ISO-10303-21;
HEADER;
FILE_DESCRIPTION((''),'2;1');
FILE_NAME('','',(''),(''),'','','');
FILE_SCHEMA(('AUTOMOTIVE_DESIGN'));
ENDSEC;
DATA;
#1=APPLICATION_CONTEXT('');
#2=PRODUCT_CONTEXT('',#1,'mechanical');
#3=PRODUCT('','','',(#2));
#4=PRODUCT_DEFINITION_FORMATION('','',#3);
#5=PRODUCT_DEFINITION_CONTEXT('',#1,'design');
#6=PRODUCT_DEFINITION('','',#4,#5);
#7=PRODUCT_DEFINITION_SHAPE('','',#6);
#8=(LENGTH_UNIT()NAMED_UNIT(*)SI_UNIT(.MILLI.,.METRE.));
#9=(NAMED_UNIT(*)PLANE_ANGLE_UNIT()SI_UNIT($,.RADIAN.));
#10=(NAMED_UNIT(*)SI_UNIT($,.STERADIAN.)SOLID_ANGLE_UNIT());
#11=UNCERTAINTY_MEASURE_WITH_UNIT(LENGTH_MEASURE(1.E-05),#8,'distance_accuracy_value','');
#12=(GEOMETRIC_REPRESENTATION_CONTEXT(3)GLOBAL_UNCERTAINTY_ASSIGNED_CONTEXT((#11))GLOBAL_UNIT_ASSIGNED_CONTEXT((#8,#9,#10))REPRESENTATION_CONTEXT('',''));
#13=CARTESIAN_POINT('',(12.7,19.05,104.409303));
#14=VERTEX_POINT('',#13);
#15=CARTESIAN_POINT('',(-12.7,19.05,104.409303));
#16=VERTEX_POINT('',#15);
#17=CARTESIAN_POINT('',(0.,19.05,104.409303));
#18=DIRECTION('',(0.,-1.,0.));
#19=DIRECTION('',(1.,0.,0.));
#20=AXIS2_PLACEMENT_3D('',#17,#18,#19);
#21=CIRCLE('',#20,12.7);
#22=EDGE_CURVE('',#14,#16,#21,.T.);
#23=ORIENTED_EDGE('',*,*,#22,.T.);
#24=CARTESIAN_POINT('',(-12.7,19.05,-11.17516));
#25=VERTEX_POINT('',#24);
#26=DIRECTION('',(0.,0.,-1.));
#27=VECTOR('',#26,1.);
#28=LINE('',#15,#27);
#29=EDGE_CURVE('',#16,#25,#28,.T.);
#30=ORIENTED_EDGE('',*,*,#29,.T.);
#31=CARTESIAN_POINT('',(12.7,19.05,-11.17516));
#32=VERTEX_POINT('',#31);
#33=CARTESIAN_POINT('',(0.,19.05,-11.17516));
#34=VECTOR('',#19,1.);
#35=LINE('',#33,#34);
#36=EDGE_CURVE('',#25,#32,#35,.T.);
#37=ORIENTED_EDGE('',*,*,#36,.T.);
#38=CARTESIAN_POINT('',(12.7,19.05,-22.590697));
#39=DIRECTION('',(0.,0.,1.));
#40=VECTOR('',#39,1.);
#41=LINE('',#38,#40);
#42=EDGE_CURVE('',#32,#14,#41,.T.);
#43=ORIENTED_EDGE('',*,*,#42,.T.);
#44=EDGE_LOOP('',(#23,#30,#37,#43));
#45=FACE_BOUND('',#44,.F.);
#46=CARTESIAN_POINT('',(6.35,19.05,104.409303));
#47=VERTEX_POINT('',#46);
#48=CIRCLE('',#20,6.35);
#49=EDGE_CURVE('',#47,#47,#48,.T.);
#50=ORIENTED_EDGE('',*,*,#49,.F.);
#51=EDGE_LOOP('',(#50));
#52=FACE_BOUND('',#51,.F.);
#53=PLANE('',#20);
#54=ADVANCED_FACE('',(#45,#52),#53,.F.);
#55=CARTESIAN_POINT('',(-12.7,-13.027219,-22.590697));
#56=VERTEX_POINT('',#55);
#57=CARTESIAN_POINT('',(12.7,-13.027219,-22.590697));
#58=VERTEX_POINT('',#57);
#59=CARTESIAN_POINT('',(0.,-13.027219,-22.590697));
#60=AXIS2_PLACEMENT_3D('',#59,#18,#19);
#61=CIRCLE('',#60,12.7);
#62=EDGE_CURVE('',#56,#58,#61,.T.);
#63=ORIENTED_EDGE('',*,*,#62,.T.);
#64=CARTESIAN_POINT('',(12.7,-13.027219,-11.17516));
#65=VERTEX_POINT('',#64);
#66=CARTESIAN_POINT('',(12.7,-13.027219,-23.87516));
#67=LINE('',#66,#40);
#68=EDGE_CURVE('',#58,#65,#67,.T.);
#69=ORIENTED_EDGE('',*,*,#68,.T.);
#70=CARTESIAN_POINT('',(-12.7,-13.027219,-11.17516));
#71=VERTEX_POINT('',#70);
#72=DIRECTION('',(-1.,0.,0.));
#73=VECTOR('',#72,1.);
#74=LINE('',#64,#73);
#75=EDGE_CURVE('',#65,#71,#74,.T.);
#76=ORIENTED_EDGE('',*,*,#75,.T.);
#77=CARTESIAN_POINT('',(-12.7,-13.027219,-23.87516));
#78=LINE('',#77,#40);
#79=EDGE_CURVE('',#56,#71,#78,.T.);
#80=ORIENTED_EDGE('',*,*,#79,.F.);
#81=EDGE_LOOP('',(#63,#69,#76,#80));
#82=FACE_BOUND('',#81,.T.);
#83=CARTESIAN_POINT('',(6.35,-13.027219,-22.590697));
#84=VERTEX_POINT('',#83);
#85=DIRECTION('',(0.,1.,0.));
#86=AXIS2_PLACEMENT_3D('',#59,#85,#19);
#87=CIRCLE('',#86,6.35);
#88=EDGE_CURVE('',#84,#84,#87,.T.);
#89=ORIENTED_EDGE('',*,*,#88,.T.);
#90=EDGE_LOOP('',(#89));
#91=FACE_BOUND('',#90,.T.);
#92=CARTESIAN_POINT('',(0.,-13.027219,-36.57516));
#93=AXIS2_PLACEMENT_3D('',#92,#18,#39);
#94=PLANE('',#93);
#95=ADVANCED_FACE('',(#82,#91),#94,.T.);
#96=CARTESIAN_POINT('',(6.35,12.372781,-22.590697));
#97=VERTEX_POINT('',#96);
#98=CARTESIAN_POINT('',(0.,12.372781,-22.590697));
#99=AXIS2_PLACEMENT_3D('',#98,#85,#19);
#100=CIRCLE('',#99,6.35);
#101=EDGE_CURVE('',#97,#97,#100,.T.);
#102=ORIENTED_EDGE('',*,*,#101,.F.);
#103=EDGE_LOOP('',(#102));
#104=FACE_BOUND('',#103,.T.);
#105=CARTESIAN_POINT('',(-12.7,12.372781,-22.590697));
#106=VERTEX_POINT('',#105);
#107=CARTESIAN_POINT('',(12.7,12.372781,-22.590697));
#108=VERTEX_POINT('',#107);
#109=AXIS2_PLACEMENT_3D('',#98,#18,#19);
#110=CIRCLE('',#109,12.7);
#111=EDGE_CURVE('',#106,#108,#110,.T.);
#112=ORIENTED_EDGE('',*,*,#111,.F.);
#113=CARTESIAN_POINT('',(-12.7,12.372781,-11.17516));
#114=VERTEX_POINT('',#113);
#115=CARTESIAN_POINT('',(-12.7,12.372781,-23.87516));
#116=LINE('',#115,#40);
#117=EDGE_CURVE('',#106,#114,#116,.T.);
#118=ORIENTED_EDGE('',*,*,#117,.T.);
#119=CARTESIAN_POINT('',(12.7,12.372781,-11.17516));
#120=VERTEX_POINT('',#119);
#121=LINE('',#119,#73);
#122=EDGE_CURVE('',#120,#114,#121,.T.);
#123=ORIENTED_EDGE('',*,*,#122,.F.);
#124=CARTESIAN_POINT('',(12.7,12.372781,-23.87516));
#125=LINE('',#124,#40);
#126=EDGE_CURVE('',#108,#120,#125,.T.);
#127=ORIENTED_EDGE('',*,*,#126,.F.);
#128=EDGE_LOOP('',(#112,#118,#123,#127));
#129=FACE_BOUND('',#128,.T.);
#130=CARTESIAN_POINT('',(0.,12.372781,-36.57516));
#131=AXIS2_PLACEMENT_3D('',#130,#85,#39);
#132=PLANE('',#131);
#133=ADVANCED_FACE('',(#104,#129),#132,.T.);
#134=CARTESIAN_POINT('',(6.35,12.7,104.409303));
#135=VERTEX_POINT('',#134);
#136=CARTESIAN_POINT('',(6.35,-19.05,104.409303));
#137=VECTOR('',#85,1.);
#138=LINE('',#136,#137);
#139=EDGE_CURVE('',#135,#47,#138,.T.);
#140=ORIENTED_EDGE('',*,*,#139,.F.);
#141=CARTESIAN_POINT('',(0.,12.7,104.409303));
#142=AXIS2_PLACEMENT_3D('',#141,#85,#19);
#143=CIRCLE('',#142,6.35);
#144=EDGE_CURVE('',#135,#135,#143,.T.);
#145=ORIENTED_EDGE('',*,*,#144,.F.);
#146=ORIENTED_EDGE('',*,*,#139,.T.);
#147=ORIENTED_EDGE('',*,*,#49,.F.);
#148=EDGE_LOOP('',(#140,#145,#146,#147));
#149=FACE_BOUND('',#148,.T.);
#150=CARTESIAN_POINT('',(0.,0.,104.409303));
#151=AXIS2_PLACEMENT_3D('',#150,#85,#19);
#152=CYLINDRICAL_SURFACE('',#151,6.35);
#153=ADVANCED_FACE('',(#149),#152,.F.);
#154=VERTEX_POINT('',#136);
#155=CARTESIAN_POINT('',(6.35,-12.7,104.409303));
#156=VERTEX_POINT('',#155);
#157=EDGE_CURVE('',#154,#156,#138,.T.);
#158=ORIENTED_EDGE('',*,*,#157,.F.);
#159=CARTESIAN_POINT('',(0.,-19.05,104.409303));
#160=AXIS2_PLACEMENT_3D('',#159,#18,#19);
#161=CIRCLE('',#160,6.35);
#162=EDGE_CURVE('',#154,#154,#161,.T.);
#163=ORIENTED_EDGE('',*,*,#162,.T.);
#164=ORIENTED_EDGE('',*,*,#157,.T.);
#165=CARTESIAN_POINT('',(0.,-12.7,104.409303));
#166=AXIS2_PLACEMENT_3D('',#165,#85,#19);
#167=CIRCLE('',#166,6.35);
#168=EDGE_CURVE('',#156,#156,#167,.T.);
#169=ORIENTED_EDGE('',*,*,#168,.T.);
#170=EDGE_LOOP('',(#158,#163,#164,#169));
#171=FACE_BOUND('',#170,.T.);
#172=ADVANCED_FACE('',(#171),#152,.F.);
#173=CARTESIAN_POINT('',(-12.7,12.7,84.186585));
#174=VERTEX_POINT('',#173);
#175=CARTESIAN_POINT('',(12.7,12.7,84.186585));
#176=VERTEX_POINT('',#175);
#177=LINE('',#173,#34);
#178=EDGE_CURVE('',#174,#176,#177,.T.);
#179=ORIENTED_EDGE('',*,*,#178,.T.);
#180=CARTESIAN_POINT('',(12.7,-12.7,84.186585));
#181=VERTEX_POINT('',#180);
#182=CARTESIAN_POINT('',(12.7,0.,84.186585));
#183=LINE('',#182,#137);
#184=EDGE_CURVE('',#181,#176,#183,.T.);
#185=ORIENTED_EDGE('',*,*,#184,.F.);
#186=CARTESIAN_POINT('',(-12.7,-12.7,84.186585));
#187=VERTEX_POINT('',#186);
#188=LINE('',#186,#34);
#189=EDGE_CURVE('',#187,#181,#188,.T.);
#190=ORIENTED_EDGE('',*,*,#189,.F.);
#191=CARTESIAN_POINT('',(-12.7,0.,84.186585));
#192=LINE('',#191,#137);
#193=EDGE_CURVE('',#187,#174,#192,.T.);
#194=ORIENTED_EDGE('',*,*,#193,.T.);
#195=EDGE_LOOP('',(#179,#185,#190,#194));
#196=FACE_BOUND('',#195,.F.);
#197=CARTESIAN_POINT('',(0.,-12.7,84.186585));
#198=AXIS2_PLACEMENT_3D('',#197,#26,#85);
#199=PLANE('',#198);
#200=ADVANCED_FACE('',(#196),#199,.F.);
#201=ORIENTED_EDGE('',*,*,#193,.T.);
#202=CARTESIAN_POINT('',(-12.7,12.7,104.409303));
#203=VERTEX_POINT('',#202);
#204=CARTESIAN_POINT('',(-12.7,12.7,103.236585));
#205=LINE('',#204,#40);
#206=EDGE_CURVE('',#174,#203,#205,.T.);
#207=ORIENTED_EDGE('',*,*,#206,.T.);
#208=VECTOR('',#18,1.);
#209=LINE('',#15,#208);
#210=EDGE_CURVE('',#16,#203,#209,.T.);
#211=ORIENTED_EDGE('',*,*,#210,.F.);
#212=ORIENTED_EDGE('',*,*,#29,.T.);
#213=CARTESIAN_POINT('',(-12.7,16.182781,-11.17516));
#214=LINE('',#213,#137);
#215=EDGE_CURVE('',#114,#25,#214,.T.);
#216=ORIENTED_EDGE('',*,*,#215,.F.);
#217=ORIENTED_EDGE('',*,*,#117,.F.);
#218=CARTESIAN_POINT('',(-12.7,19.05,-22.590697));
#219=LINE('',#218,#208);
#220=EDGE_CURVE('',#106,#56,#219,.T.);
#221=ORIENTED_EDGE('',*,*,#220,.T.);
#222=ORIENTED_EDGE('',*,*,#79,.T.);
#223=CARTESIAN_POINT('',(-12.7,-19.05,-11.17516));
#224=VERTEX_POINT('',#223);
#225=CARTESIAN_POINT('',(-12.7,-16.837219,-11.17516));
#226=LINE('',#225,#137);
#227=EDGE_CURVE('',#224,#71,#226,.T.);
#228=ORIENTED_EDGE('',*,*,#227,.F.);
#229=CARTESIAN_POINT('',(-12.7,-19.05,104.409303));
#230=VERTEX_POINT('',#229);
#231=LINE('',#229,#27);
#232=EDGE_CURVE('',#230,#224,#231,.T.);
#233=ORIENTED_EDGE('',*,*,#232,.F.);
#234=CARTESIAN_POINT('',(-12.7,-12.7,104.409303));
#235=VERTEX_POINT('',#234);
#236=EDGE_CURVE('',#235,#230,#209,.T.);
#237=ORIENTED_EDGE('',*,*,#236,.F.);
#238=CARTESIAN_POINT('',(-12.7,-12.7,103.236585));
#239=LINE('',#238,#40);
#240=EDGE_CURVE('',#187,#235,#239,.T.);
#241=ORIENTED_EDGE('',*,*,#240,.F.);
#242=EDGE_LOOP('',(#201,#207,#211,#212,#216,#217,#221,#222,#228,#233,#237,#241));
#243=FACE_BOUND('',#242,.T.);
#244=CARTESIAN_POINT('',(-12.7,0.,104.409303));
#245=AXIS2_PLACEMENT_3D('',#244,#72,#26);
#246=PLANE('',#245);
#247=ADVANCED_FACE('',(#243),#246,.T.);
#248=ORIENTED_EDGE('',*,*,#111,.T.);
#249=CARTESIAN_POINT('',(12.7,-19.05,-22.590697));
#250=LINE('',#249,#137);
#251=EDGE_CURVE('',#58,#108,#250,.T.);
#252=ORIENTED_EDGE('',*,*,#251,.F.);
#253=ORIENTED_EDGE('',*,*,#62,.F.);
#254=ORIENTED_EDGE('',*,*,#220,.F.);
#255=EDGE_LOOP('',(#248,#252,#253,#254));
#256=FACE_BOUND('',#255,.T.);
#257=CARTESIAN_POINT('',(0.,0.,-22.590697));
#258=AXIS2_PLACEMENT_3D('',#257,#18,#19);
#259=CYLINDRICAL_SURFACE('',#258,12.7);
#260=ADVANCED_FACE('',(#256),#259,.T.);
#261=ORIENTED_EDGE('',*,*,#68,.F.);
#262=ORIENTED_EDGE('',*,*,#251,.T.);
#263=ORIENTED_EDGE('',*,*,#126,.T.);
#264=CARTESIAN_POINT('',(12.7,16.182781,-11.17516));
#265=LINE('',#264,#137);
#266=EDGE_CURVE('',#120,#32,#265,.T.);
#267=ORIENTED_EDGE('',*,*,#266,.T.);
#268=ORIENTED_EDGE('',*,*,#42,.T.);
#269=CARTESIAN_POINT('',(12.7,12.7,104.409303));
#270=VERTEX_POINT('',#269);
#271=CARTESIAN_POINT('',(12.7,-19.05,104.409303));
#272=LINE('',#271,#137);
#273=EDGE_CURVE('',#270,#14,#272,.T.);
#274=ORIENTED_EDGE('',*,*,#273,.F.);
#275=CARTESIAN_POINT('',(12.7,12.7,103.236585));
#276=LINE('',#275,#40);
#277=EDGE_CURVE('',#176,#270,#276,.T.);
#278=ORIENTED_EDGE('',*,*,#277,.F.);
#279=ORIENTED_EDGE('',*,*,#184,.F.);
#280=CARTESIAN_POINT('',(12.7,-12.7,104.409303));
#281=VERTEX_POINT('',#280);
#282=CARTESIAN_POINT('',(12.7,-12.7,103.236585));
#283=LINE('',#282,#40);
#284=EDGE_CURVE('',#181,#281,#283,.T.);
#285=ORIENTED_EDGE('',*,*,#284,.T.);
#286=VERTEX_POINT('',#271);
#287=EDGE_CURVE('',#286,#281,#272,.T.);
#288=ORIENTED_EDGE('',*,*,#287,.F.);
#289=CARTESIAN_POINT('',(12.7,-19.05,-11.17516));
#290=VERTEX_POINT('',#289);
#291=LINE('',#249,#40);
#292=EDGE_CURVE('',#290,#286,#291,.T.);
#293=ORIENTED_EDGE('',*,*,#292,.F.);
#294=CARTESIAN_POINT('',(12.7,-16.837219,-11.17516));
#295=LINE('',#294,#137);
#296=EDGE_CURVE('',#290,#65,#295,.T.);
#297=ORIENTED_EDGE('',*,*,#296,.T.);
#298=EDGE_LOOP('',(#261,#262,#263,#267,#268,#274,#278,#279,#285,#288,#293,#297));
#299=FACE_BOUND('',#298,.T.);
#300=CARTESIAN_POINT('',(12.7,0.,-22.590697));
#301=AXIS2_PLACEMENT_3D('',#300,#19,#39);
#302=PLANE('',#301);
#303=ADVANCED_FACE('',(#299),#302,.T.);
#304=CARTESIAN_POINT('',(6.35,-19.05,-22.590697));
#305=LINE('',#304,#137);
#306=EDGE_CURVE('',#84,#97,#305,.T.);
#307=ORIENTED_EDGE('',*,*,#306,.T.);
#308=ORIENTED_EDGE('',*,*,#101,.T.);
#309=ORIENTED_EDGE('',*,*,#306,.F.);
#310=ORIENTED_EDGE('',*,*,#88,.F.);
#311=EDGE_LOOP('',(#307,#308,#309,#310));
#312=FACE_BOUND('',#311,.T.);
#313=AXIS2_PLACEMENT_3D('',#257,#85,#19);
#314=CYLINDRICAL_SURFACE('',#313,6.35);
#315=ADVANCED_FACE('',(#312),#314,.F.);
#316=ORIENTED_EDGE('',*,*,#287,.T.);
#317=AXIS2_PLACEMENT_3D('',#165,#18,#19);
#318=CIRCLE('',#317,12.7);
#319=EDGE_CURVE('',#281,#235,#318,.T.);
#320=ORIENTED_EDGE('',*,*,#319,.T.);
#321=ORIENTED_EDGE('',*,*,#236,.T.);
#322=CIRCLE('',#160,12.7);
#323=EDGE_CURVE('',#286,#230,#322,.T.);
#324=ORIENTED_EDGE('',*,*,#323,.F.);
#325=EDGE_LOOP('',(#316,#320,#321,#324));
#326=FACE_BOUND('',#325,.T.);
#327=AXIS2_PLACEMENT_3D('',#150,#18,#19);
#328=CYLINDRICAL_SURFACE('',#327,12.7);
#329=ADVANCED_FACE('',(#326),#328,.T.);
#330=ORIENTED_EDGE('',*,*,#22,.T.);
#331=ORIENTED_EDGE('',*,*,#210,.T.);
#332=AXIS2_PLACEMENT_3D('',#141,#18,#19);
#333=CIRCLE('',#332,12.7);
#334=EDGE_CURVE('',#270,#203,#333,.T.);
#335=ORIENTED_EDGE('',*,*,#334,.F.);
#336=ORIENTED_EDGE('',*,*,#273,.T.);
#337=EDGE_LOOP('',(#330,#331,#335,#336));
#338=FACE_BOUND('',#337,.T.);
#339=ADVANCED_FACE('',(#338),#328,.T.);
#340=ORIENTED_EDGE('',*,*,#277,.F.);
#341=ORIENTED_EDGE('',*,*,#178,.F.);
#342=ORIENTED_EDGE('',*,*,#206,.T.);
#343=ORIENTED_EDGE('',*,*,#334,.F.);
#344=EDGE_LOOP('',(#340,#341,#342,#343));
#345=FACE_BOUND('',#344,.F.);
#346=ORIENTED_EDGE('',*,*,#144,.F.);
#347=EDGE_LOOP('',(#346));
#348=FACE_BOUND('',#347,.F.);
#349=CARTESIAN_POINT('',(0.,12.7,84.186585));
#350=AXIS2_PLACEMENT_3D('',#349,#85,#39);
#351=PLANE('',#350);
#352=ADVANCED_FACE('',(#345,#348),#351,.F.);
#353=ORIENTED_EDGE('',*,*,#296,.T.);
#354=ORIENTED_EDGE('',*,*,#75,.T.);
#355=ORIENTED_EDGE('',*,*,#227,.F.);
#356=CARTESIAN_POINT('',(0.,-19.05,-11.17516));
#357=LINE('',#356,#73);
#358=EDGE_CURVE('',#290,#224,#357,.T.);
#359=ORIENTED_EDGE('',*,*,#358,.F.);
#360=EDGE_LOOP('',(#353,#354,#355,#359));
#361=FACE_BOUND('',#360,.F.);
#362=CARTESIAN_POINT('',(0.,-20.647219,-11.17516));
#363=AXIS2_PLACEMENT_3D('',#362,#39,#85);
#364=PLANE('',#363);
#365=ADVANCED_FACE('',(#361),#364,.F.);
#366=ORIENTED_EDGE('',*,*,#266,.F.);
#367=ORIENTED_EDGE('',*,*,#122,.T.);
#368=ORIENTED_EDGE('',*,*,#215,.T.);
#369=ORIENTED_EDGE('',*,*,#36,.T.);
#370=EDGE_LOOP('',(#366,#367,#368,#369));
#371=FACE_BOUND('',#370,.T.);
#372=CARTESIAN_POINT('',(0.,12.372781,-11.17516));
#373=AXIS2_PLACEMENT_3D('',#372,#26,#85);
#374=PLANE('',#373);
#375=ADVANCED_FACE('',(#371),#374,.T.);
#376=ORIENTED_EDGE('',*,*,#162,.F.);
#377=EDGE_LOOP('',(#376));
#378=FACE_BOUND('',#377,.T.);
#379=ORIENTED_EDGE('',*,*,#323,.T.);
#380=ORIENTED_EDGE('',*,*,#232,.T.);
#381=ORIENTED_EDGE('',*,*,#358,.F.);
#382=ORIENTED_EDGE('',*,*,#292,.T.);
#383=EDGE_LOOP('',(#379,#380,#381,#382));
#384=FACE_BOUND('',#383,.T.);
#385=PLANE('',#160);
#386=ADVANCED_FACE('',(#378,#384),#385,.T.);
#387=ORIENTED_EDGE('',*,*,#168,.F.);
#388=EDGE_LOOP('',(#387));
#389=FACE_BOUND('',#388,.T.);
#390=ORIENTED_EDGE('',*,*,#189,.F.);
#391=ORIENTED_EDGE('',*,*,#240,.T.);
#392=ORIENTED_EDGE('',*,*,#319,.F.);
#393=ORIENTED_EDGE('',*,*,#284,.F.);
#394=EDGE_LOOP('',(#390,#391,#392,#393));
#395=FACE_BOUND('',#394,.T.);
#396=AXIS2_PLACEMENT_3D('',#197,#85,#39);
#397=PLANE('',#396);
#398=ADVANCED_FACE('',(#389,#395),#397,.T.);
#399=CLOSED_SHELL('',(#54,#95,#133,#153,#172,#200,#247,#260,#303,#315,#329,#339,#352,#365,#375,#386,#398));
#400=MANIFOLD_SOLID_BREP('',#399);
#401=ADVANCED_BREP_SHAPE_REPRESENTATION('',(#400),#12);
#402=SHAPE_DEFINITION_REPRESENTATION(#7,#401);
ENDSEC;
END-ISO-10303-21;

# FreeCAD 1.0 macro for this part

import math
import FreeCAD as App
import Part
import Sketcher
from FreeCAD import Vector
Q = App.Units.Quantity


def add_polygon(sketch, points):
    """Adds a closed chain of lines whose ends are joined by coincident constraints."""
    first, n = sketch.GeometryCount, len(points)
    for a, b in zip(points, points[1:] + points[:1]):
        sketch.addGeometry(Part.LineSegment(App.Vector(*a, 0), App.Vector(*b, 0)), False)
    for i in range(n):
        sketch.addConstraint(Sketcher.Constraint("Coincident", first + i, 2, first + (i + 1) % n, 1))

doc = App.newDocument("Part")
params = doc.addObject("Spreadsheet::Sheet", "Params")
for row, (alias, value) in enumerate([
    ("sketch1_diameter", "0.5 in"),
    ("sketch1_radius", "0.5 in"),
    ("sketch1_height", "5 in"),
    ("pad1_length", "1.5 in"),
    ("sketch2_width", "1 in"),
    ("sketch2_height", "1.5 in"),
    ("pocket1_length", "1 in"),
    ("sketch3_height", "1 in"),
    ("sketch3_width", "0.3 in"),
    ("pocket2_length", "1 in"),
], start=1):
    params.set(f"A{row}", alias)
    params.set(f"B{row}", "=" + value)
    params.setAlias(f"B{row}", alias)

body = doc.addObject("PartDesign::Body", "Body")

# Sketch on XZ plane
sketch1 = body.newObject("Sketcher::SketchObject", "Sketch")
sketch1.AttachmentSupport = (doc.getObject("XZ_Plane"), [""])
sketch1.MapMode = "FlatFace"
sketch1.addGeometry([
    Part.ArcOfCircle(Part.Circle(Vector(0, 104, 0), Vector(0, 0, 1), 13), math.radians(0), math.radians(180)),  # 0
    Part.LineSegment(Vector(-13, 104, 0), Vector(-13, -23, 0)),  # 1
    Part.ArcOfCircle(Part.Circle(Vector(0, -23, 0), Vector(0, 0, 1), 13), math.radians(180), math.radians(360)),  # 2
    Part.LineSegment(Vector(13, -23, 0), Vector(13, 104, 0)),  # 3
    Part.Circle(Vector(0, -23, 0), Vector(0, 0, 1), 6),  # 4
    Part.Circle(Vector(0, 104, 0), Vector(0, 0, 1), 6),  # 5
], False)
sketch1.addConstraint([
    Sketcher.Constraint("Tangent", 0, 2, 1, 1),
    Sketcher.Constraint("Tangent", 1, 2, 2, 1),
    Sketcher.Constraint("Tangent", 2, 2, 3, 1),
    Sketcher.Constraint("Tangent", 3, 2, 0, 1),
    Sketcher.Constraint("Vertical", 1),
    Sketcher.Constraint("Vertical", 3),
    Sketcher.Constraint("Coincident", 4, 3, 2, 3),
    Sketcher.Constraint("Coincident", 5, 3, 0, 3),
    Sketcher.Constraint("Equal", 4, 5),
    Sketcher.Constraint("PointOnObject", 0, 3, -2),
    Sketcher.Constraint("Diameter", 4, Q("0.5 in")),
    Sketcher.Constraint("Radius", 0, Q("0.5 in")),
    Sketcher.Constraint("DistanceY", 1, 2, 1, 1, Q("5 in")),
    Sketcher.Constraint("DistanceY", -1, 1, 0, 3, 104.409303),
])
sketch1.setExpression("Constraints[10]", "Params.sketch1_diameter")
sketch1.setExpression("Constraints[11]", "Params.sketch1_radius")
sketch1.setExpression("Constraints[12]", "Params.sketch1_height")
pad1 = body.newObject("PartDesign::Pad", "Pad")
pad1.Profile = sketch1
pad1.setExpression("Length", "Params.pad1_length")
pad1.Midplane = True

# Sketch on YZ plane
sketch2 = body.newObject("Sketcher::SketchObject", "Sketch001")
sketch2.AttachmentSupport = (doc.getObject("YZ_Plane"), [""])
sketch2.MapMode = "FlatFace"
add_polygon(sketch2, [(-13, 122), (-13, 84), (13, 84), (13, 122)])  # lines 0-3
sketch2.addConstraint([
    Sketcher.Constraint("Vertical", 0),
    Sketcher.Constraint("Horizontal", 1),
    Sketcher.Constraint("Vertical", 2),
    Sketcher.Constraint("Horizontal", 3),
    Sketcher.Constraint("DistanceX", 1, 1, 1, 2, Q("1 in")),
    Sketcher.Constraint("DistanceY", 0, 2, 0, 1, Q("1.5 in")),
    Sketcher.Constraint("DistanceX", 0, 2, -1, 1, Q("0.5 in")),
    Sketcher.Constraint("DistanceY", -1, 1, 0, 2, 84.186585),
])
sketch2.setExpression("Constraints[8]", "Params.sketch2_width")
sketch2.setExpression("Constraints[9]", "Params.sketch2_height")
pocket1 = body.newObject("PartDesign::Pocket", "Pocket")
pocket1.Profile = sketch2
pocket1.setExpression("Length", "Params.pocket1_length")
pocket1.Midplane = True

# Sketch on YZ plane
sketch3 = body.newObject("Sketcher::SketchObject", "Sketch002")
sketch3.AttachmentSupport = (doc.getObject("YZ_Plane"), [""])
sketch3.MapMode = "FlatFace"
add_polygon(sketch3, [(-21, -11), (-21, -37), (-13, -37), (-13, -11)])  # lines 0-3
add_polygon(sketch3, [(12, -11), (12, -37), (20, -37), (20, -11)])  # lines 4-7
sketch3.addConstraint([
    Sketcher.Constraint("Vertical", 0),
    Sketcher.Constraint("Horizontal", 1),
    Sketcher.Constraint("Vertical", 2),
    Sketcher.Constraint("Horizontal", 3),
    Sketcher.Constraint("Vertical", 4),
    Sketcher.Constraint("Horizontal", 5),
    Sketcher.Constraint("Vertical", 6),
    Sketcher.Constraint("Horizontal", 7),
    Sketcher.Constraint("Horizontal", 1, 2, 4, 2),
    Sketcher.Constraint("Horizontal", 3, 2, 6, 2),
    Sketcher.Constraint("Equal", 3, 5),
    Sketcher.Constraint("DistanceY", 0, 2, 0, 1, Q("1 in")),
    Sketcher.Constraint("DistanceX", 1, 1, 1, 2, Q("0.3 in")),
    Sketcher.Constraint("DistanceX", 1, 2, 4, 2, Q("1 in")),
    Sketcher.Constraint("DistanceX", 0, 2, -1, 1, 20.647219),
    Sketcher.Constraint("DistanceY", 0, 2, -1, 1, 36.57516),
])
sketch3.setExpression("Constraints[19]", "Params.sketch3_height")
sketch3.setExpression("Constraints[20]", "Params.sketch3_width")
pocket2 = body.newObject("PartDesign::Pocket", "Pocket001")
pocket2.Profile = sketch3
pocket2.setExpression("Length", "Params.pocket2_length")
pocket2.Midplane = True

doc.recompute()
